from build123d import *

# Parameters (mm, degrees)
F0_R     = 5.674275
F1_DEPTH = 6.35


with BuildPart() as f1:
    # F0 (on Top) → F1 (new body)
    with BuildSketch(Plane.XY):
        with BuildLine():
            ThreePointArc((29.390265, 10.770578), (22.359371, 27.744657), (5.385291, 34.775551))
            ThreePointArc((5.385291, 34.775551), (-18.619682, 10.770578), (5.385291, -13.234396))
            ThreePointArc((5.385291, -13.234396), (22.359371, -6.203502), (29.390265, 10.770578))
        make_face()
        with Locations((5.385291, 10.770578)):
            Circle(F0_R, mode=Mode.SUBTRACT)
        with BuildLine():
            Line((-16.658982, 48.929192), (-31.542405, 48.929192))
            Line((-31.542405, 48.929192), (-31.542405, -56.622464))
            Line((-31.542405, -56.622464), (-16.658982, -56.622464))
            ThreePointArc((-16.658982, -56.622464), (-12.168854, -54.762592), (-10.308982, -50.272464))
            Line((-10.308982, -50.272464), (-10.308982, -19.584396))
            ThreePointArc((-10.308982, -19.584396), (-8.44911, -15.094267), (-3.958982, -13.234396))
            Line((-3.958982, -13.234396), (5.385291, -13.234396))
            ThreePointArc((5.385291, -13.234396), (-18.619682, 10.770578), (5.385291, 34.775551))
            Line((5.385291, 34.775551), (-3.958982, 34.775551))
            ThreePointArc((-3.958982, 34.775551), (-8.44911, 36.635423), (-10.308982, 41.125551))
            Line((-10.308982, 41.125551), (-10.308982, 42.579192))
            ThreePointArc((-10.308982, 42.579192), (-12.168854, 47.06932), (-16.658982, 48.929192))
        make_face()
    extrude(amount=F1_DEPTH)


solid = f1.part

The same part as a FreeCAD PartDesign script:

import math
import FreeCAD as App
import Part
import Sketcher
Q = App.Units.Quantity

doc = App.newDocument("Part")
body = doc.addObject("PartDesign::Body", "Body")

# Sketch on XY plane
sketch1 = body.newObject("Sketcher::SketchObject", "Sketch")
sketch1.AttachmentSupport = (doc.getObject("XY_Plane"), [""])
sketch1.MapMode = "FlatFace"
sketch1.addGeometry(Part.ArcOfCircle(Part.Circle(App.Vector(5.385291, 10.770577, 0), App.Vector(0, 0, 1), 24.004974), math.radians(0.000002), math.radians(90.000001)), False)
sketch1.addGeometry(Part.LineSegment(App.Vector(5.385291, 34.775551, 0), App.Vector(-3.958982, 34.775551, 0)), False)
sketch1.addGeometry(Part.ArcOfCircle(Part.Circle(App.Vector(-3.958982, 41.125551, 0), App.Vector(0, 0, 1), 6.35), math.radians(-179.999998), math.radians(-90.000002)), False)
sketch1.addGeometry(Part.LineSegment(App.Vector(-10.308982, 41.125551, 0), App.Vector(-10.308982, 42.579192, 0)), False)
sketch1.addGeometry(Part.ArcOfCircle(Part.Circle(App.Vector(-16.658982, 42.579192, 0), App.Vector(0, 0, 1), 6.35), math.radians(0.000002), math.radians(89.999998)), False)
sketch1.addGeometry(Part.LineSegment(App.Vector(-16.658982, 48.929192, 0), App.Vector(-31.542405, 48.929192, 0)), False)
sketch1.addGeometry(Part.LineSegment(App.Vector(-31.542405, 48.929192, 0), App.Vector(-31.542405, -56.622464, 0)), False)
sketch1.addGeometry(Part.LineSegment(App.Vector(-31.542405, -56.622464, 0), App.Vector(-16.658982, -56.622464, 0)), False)
sketch1.addGeometry(Part.ArcOfCircle(Part.Circle(App.Vector(-16.658982, -50.272464, 0), App.Vector(0, 0, 1), 6.35), math.radians(-89.999998), math.radians(-0.000002)), False)
sketch1.addGeometry(Part.LineSegment(App.Vector(-10.308982, -50.272464, 0), App.Vector(-10.308982, -19.584396, 0)), False)
sketch1.addGeometry(Part.ArcOfCircle(Part.Circle(App.Vector(-3.958983, -19.584394, 0), App.Vector(0, 0, 1), 6.349998), math.radians(89.999986), math.radians(180.000014)), False)
sketch1.addGeometry(Part.LineSegment(App.Vector(-3.958982, -13.234396, 0), App.Vector(5.385291, -13.234396, 0)), False)
sketch1.addGeometry(Part.ArcOfCircle(Part.Circle(App.Vector(5.385291, 10.770578, 0), App.Vector(0, 0, 1), 24.004974), math.radians(-90.000001), math.radians(0.000001)), False)
sketch1.addGeometry(Part.Circle(App.Vector(5.385291, 10.770578, 0), App.Vector(0, 0, 1), 5.674275), False)
sketch1.addConstraint(Sketcher.Constraint("Tangent", 0, 2, 1, 1))
sketch1.addConstraint(Sketcher.Constraint("Tangent", 1, 2, 2, 2))
sketch1.addConstraint(Sketcher.Constraint("Tangent", 2, 1, 3, 1))
sketch1.addConstraint(Sketcher.Constraint("Tangent", 3, 2, 4, 1))
sketch1.addConstraint(Sketcher.Constraint("Tangent", 4, 2, 5, 1))
sketch1.addConstraint(Sketcher.Constraint("Coincident", 5, 2, 6, 1))
sketch1.addConstraint(Sketcher.Constraint("Coincident", 6, 2, 7, 1))
sketch1.addConstraint(Sketcher.Constraint("Tangent", 7, 2, 8, 1))
sketch1.addConstraint(Sketcher.Constraint("Tangent", 8, 2, 9, 1))
sketch1.addConstraint(Sketcher.Constraint("Tangent", 9, 2, 10, 2))
sketch1.addConstraint(Sketcher.Constraint("Tangent", 10, 1, 11, 1))
sketch1.addConstraint(Sketcher.Constraint("Tangent", 11, 2, 12, 1))
sketch1.addConstraint(Sketcher.Constraint("Tangent", 12, 2, 0, 1))
sketch1.addConstraint(Sketcher.Constraint("Horizontal", 1))
sketch1.addConstraint(Sketcher.Constraint("Vertical", 3))
sketch1.addConstraint(Sketcher.Constraint("Horizontal", 5))
sketch1.addConstraint(Sketcher.Constraint("Vertical", 6))
sketch1.addConstraint(Sketcher.Constraint("Horizontal", 7))
sketch1.addConstraint(Sketcher.Constraint("Vertical", 9))
sketch1.addConstraint(Sketcher.Constraint("Horizontal", 11))
sketch1.addConstraint(Sketcher.Constraint("Coincident", 13, 3, 0, 3))
sketch1.addConstraint(Sketcher.Constraint("Equal", 2, 4))
sketch1.addConstraint(Sketcher.Constraint("Equal", 4, 8))
sketch1.addConstraint(Sketcher.Constraint("Equal", 8, 10))
sketch1.addConstraint(Sketcher.Constraint("Equal", 0, 12))
sketch1.addConstraint(Sketcher.Constraint("Horizontal", 13, 3, 12, 2))
sketch1.addConstraint(Sketcher.Constraint("Vertical", 4, 3, 8, 3))
sketch1.addConstraint(Sketcher.Constraint("Radius", 2, Q("0.25 in")))
sketch1.addConstraint(Sketcher.Constraint("Diameter", 13, Q("11.34855 mm")))
sketch1.addConstraint(Sketcher.Constraint("Radius", 0, Q("24.004974 mm")))
sketch1.addConstraint(Sketcher.Constraint("DistanceY", 3, 1, 3, 2, Q("1.453641 mm")))
sketch1.addConstraint(Sketcher.Constraint("DistanceX", 1, 2, 1, 1, Q("9.344273 mm")))
sketch1.addConstraint(Sketcher.Constraint("DistanceX", 5, 2, 5, 1, Q("14.883423 mm")))
sketch1.addConstraint(Sketcher.Constraint("DistanceY", 6, 2, 6, 1, Q("105.551656 mm")))
sketch1.addConstraint(Sketcher.Constraint("DistanceX", -1, 1, 0, 3, Q("5.385291 mm")))
sketch1.addConstraint(Sketcher.Constraint("DistanceY", -1, 1, 2, 3, Q("41.125551 mm")))
pad1 = body.newObject("PartDesign::Pad", "Pad")
pad1.Profile = sketch1
pad1.Length = Q("0.25 in")

doc.recompute()
